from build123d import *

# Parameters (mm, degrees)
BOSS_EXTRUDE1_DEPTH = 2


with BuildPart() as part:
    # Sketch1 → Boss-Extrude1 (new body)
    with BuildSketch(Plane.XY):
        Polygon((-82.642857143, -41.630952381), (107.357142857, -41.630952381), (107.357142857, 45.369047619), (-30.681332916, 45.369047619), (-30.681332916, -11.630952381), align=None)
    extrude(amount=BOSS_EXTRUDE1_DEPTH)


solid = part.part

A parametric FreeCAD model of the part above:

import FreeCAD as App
import Part
import Sketcher

V = App.Vector
Q = App.Units.Quantity


def add_polygon(sketch, points):
    """Adds a closed chain of lines whose ends are joined by coincident constraints."""
    first, n = sketch.GeometryCount, len(points)
    for a, b in zip(points, points[1:] + points[:1]):
        sketch.addGeometry(Part.LineSegment(App.Vector(*a, 0), App.Vector(*b, 0)), False)
    for i in range(n):
        sketch.addConstraint(Sketcher.Constraint("Coincident", first + i, 2, first + (i + 1) % n, 1))

doc = App.newDocument("Part")
body = doc.addObject("PartDesign::Body", "Body")

# Sketch on XY plane
sketch1 = body.newObject("Sketcher::SketchObject", "Sketch")
sketch1.AttachmentSupport = (doc.getObject("XY_Plane"), [""])
sketch1.MapMode = "FlatFace"
add_polygon(sketch1, [(-83, -42), (107, -42), (107, 45), (-31, 45), (-31, -12)])  # lines 0-4
sketch1.addConstraint([
    Sketcher.Constraint("Horizontal", 0),
    Sketcher.Constraint("Vertical", 1),
    Sketcher.Constraint("Horizontal", 2),
    Sketcher.Constraint("Vertical", 3),
    Sketcher.Constraint("DistanceX", 0, 1, 0, 2, Q("190 mm")),
    Sketcher.Constraint("DistanceY", 1, 1, 1, 2, Q("87 mm")),
    Sketcher.Constraint("DistanceY", 3, 2, 3, 1, Q("57 mm")),
    Sketcher.Constraint("Angle", 4, Q("-150 deg")),
    Sketcher.Constraint("DistanceX", -1, 1, 0, 2, Q("107.357143 mm")),
    Sketcher.Constraint("DistanceY", 0, 2, -1, 1, Q("41.630952 mm")),
])
pad1 = body.newObject("PartDesign::Pad", "Pad")
pad1.Profile = sketch1
pad1.Length = 2

doc.recompute()
